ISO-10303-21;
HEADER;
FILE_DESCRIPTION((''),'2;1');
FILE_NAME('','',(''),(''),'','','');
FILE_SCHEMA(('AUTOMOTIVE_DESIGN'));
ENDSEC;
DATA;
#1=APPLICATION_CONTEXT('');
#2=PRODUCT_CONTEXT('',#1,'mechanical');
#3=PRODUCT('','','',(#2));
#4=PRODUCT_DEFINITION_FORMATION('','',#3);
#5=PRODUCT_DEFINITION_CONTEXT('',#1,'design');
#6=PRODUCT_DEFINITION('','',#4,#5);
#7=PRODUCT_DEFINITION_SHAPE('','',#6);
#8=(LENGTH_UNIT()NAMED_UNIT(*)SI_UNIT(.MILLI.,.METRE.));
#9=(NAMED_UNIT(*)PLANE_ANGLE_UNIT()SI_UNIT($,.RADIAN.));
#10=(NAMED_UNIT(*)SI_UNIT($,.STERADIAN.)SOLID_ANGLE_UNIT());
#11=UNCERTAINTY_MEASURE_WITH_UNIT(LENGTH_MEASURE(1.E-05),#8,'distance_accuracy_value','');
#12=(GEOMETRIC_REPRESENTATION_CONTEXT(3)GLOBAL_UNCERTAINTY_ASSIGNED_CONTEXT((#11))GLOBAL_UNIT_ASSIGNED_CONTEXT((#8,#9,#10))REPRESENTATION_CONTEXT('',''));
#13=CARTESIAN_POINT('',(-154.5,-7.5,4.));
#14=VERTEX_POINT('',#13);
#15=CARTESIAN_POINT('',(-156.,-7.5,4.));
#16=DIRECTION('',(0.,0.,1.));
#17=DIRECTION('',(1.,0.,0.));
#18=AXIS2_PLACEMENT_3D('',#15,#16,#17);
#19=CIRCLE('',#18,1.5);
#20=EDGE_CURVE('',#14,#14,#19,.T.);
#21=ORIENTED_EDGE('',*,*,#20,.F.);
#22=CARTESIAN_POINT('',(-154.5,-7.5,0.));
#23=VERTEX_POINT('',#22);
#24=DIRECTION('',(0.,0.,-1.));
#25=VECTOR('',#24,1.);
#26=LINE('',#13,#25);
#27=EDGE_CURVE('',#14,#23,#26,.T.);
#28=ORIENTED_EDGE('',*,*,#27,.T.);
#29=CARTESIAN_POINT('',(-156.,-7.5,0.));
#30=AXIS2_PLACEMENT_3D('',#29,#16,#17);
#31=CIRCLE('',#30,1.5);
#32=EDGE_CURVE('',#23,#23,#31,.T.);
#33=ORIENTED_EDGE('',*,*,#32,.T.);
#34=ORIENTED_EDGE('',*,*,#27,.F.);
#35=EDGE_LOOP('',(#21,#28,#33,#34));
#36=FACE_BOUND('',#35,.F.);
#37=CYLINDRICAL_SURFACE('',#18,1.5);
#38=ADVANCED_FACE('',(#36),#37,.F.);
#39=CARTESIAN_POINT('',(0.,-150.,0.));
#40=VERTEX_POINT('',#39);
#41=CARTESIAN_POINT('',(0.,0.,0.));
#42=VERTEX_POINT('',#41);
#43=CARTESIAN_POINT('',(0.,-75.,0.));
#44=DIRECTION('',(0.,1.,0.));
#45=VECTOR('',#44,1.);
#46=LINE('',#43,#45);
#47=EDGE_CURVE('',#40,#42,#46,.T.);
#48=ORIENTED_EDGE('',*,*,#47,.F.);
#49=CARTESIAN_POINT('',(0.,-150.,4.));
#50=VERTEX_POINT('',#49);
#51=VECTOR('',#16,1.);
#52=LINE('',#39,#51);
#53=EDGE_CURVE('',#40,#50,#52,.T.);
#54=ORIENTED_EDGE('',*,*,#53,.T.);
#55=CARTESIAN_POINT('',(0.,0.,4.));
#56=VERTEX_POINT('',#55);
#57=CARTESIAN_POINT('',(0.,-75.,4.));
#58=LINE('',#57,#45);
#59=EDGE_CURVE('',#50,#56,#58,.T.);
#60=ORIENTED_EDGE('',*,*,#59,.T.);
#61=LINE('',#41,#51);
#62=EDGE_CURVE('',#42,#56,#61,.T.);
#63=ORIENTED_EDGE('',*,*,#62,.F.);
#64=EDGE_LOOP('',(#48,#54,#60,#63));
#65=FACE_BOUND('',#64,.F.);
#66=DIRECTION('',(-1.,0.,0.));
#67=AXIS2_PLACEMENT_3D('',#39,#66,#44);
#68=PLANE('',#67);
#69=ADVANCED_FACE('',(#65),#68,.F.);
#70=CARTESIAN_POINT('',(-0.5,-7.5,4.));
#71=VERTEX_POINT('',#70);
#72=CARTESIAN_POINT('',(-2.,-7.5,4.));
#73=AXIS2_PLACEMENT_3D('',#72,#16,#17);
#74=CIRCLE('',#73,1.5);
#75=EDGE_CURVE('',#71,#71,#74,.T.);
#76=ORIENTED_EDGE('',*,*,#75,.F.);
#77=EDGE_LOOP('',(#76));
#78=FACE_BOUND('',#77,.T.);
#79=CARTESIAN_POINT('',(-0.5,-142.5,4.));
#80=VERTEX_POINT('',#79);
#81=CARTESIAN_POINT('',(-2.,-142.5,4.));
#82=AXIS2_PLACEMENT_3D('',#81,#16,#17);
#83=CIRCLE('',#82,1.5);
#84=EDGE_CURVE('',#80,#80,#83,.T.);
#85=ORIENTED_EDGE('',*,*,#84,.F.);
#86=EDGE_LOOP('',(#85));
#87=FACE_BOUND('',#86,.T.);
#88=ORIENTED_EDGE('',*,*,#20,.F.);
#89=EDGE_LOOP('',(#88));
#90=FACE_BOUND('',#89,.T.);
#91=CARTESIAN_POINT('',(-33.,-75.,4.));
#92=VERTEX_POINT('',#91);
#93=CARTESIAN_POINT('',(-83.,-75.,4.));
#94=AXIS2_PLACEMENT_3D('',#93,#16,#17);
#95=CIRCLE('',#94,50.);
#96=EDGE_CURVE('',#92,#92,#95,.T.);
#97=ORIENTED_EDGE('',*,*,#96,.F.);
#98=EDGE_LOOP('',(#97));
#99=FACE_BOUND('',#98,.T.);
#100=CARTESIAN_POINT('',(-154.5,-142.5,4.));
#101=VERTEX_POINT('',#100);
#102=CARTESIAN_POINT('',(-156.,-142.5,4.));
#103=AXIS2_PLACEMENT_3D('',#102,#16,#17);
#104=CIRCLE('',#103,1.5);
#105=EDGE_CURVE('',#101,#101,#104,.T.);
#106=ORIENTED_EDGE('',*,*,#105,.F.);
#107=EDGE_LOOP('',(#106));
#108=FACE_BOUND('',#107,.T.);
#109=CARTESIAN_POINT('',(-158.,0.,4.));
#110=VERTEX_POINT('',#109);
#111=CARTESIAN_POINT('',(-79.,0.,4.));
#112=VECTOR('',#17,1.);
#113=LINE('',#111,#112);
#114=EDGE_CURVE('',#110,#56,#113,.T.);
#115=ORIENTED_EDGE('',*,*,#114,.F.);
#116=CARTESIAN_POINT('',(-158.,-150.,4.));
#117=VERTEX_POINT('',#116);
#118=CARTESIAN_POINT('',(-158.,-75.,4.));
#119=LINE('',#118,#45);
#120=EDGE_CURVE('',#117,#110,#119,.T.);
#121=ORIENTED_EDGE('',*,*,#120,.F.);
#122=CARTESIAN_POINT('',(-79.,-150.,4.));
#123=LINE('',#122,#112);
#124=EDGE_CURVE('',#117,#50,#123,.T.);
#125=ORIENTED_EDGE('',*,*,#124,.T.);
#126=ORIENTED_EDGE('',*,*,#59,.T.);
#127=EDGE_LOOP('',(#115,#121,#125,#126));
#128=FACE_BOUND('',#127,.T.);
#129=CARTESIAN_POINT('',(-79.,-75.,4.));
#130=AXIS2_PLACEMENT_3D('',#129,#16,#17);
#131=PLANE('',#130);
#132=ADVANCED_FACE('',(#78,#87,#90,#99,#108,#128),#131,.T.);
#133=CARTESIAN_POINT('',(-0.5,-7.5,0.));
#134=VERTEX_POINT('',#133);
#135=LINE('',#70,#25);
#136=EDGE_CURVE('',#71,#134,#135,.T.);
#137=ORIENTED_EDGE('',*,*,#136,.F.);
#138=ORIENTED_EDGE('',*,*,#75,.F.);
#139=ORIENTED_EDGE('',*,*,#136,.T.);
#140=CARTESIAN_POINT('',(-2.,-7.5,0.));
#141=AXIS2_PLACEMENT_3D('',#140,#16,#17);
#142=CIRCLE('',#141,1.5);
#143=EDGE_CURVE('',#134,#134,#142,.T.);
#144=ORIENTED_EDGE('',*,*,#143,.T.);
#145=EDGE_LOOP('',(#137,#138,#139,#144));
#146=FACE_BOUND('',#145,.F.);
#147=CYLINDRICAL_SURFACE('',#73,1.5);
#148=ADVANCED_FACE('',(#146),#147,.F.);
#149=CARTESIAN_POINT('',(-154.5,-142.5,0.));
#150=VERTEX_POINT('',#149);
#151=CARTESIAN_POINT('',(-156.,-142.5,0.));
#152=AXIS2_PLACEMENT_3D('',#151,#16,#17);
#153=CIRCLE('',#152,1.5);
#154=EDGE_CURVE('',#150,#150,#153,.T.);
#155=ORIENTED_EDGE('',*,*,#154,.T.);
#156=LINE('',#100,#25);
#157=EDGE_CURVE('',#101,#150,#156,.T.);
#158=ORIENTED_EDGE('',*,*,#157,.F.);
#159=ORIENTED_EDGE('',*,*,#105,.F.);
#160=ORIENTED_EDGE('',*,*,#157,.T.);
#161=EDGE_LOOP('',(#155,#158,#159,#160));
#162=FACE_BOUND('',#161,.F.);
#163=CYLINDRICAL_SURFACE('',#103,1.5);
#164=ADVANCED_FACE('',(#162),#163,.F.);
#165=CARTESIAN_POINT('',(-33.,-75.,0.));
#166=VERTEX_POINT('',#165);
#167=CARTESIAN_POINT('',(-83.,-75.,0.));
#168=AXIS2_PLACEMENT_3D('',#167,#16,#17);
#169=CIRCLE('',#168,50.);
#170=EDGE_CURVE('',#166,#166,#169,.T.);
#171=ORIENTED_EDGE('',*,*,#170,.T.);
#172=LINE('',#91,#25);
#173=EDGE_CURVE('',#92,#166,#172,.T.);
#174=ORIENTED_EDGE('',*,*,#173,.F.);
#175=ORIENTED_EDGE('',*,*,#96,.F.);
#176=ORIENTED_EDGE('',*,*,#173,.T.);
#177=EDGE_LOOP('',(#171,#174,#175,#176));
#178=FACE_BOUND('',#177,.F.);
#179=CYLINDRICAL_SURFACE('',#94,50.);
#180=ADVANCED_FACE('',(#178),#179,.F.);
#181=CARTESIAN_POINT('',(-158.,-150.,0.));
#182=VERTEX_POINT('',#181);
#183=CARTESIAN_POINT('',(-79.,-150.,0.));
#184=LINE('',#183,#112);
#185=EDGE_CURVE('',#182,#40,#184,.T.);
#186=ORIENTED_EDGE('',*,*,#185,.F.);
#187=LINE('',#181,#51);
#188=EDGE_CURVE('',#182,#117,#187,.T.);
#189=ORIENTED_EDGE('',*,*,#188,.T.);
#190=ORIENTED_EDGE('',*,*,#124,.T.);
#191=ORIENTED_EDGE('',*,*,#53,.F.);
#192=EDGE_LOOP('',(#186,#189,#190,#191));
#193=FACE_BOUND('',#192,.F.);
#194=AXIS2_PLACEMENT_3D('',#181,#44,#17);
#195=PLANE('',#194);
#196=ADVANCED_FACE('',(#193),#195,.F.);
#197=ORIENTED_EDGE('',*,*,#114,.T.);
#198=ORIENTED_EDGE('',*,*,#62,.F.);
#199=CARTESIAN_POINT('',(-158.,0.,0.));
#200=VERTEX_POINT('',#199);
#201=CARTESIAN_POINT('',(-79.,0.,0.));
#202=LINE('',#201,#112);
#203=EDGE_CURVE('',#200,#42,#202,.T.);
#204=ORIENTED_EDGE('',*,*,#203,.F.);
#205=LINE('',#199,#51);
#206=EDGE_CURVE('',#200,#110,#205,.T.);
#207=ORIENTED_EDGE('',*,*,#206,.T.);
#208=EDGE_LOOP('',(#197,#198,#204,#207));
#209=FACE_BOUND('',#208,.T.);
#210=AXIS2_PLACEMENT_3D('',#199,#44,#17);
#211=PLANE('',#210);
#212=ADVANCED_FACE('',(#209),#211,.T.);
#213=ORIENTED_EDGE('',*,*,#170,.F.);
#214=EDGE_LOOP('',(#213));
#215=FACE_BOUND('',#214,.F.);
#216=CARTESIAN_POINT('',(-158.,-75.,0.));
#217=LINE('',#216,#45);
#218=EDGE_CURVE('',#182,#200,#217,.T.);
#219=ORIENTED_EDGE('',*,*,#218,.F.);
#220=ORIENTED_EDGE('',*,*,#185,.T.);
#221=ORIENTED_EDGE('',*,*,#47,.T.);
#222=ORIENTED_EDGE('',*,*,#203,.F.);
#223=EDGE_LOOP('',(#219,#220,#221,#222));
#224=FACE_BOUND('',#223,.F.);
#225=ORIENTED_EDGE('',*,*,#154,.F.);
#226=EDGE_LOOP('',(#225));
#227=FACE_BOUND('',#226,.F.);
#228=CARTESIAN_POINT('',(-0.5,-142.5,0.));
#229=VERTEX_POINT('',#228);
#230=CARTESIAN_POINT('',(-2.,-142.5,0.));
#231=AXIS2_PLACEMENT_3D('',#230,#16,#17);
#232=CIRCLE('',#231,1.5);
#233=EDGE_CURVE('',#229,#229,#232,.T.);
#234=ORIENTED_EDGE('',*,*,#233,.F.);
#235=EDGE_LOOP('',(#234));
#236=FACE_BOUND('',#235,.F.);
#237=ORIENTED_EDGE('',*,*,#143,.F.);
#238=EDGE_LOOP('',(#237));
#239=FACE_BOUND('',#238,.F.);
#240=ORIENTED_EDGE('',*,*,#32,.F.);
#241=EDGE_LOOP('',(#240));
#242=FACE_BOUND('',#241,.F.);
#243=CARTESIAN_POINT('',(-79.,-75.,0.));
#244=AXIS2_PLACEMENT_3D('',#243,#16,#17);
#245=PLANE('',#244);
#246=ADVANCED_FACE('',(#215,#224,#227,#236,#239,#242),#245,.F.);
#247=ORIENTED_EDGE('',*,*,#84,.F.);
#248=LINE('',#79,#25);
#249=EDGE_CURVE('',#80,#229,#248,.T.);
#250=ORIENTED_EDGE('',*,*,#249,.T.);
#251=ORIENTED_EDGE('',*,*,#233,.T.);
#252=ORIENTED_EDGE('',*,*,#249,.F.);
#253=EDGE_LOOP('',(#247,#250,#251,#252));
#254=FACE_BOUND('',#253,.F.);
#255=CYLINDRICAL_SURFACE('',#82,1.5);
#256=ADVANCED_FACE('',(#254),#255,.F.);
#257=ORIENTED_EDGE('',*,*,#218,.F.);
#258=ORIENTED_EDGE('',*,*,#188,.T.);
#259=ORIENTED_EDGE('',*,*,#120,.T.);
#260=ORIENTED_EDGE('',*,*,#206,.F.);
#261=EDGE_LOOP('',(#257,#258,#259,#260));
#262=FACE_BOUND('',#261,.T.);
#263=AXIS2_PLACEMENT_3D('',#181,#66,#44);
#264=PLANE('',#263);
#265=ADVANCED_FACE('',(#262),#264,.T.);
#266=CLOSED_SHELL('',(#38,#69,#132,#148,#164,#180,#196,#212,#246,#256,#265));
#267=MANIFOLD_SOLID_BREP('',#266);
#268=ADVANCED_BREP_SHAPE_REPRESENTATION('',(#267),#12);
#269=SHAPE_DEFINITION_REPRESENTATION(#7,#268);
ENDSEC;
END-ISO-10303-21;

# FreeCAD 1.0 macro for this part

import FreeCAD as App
import Part
import Sketcher
from FreeCAD import Vector
Q = App.Units.Quantity


def add_polygon(sketch, points):
    """Adds a closed chain of lines whose ends are joined by coincident constraints."""
    first, n = sketch.GeometryCount, len(points)
    for a, b in zip(points, points[1:] + points[:1]):
        sketch.addGeometry(Part.LineSegment(App.Vector(*a, 0), App.Vector(*b, 0)), False)
    for i in range(n):
        sketch.addConstraint(Sketcher.Constraint("Coincident", first + i, 2, first + (i + 1) % n, 1))

doc = App.newDocument("Part")
params = doc.addObject("Spreadsheet::Sheet", "Params")
for row, (alias, value) in enumerate([
    ("sketch1_width", "158 mm"),
    ("sketch1_height", "150 mm"),
    ("pad1_length", "4 mm"),
    ("sketch2_diameter", "3 mm"),
    ("pocket1_length", "25 mm"),
    ("sketch3_diameter", "100 mm"),
    ("pocket2_length", "25 mm"),
], start=1):
    params.set(f"A{row}", alias)
    params.set(f"B{row}", "=" + value)
    params.setAlias(f"B{row}", alias)

body = doc.addObject("PartDesign::Body", "Body")

# Sketch on XY plane
sketch1 = body.newObject("Sketcher::SketchObject", "Sketch")
sketch1.AttachmentSupport = (doc.getObject("XY_Plane"), [""])
sketch1.MapMode = "FlatFace"
add_polygon(sketch1, [(-158, 0), (-158, -150), (0, -150), (0, 0)])  # lines 0-3
sketch1.addConstraint([
    Sketcher.Constraint("Vertical", 0),
    Sketcher.Constraint("Horizontal", 1),
    Sketcher.Constraint("Vertical", 2),
    Sketcher.Constraint("Horizontal", 3),
    Sketcher.Constraint("Coincident", 2, 2, -1, 1),
    Sketcher.Constraint("DistanceX", 1, 1, 1, 2, Q("158 mm")),
    Sketcher.Constraint("DistanceY", 0, 2, 0, 1, Q("150 mm")),
])
sketch1.setExpression("Constraints[9]", "Params.sketch1_width")
sketch1.setExpression("Constraints[10]", "Params.sketch1_height")
pad1 = body.newObject("PartDesign::Pad", "Pad")
pad1.Profile = sketch1
pad1.setExpression("Length", "Params.pad1_length")

# Sketch on XY plane
sketch2 = body.newObject("Sketcher::SketchObject", "Sketch001")
sketch2.AttachmentSupport = (doc.getObject("XY_Plane"), [""])
sketch2.MapMode = "FlatFace"
sketch2.AttachmentOffset = App.Placement(Vector(0, 0, 4), App.Rotation())
sketch2.addGeometry([
    Part.Circle(Vector(-156, -142.5, 0), Vector(0, 0, 1), 1.5),
    Part.Circle(Vector(-2, -142.5, 0), Vector(0, 0, 1), 1.5),
    Part.Circle(Vector(-156, -7.5, 0), Vector(0, 0, 1), 1.5),
    Part.Circle(Vector(-2, -7.5, 0), Vector(0, 0, 1), 1.5),
], False)
sketch2.addConstraint([
    Sketcher.Constraint("Equal", 0, 1),
    Sketcher.Constraint("Equal", 1, 2),
    Sketcher.Constraint("Equal", 2, 3),
    Sketcher.Constraint("Horizontal", 0, 3, 1, 3),
    Sketcher.Constraint("Horizontal", 2, 3, 3, 3),
    Sketcher.Constraint("Vertical", 0, 3, 2, 3),
    Sketcher.Constraint("Vertical", 1, 3, 3, 3),
    Sketcher.Constraint("Diameter", 0, Q("3 mm")),
    Sketcher.Constraint("DistanceX", 0, 3, -1, 1, Q("156 mm")),
    Sketcher.Constraint("DistanceX", 1, 3, -1, 1, Q("2 mm")),
    Sketcher.Constraint("DistanceY", 0, 3, 2, 3, Q("135 mm")),
    Sketcher.Constraint("DistanceY", 0, 3, -1, 1, Q("142.5 mm")),
])
sketch2.setExpression("Constraints[7]", "Params.sketch2_diameter")
pocket1 = body.newObject("PartDesign::Pocket", "Pocket")
pocket1.Profile = sketch2
pocket1.setExpression("Length", "Params.pocket1_length")

# Sketch on XY plane
sketch3 = body.newObject("Sketcher::SketchObject", "Sketch002")
sketch3.AttachmentSupport = (doc.getObject("XY_Plane"), [""])
sketch3.MapMode = "FlatFace"
sketch3.AttachmentOffset = App.Placement(Vector(0, 0, 4), App.Rotation())
sketch3.addGeometry(Part.Circle(Vector(-83, -75, 0), Vector(0, 0, 1), 50), False)
sketch3.addConstraint([
    Sketcher.Constraint("Diameter", 0, Q("100 mm")),
    Sketcher.Constraint("DistanceX", 0, 3, -1, 1, Q("83 mm")),
    Sketcher.Constraint("DistanceY", 0, 3, -1, 1, Q("75 mm")),
])
sketch3.setExpression("Constraints[0]", "Params.sketch3_diameter")
pocket2 = body.newObject("PartDesign::Pocket", "Pocket001")
pocket2.Profile = sketch3
pocket2.setExpression("Length", "Params.pocket2_length")

doc.recompute()
